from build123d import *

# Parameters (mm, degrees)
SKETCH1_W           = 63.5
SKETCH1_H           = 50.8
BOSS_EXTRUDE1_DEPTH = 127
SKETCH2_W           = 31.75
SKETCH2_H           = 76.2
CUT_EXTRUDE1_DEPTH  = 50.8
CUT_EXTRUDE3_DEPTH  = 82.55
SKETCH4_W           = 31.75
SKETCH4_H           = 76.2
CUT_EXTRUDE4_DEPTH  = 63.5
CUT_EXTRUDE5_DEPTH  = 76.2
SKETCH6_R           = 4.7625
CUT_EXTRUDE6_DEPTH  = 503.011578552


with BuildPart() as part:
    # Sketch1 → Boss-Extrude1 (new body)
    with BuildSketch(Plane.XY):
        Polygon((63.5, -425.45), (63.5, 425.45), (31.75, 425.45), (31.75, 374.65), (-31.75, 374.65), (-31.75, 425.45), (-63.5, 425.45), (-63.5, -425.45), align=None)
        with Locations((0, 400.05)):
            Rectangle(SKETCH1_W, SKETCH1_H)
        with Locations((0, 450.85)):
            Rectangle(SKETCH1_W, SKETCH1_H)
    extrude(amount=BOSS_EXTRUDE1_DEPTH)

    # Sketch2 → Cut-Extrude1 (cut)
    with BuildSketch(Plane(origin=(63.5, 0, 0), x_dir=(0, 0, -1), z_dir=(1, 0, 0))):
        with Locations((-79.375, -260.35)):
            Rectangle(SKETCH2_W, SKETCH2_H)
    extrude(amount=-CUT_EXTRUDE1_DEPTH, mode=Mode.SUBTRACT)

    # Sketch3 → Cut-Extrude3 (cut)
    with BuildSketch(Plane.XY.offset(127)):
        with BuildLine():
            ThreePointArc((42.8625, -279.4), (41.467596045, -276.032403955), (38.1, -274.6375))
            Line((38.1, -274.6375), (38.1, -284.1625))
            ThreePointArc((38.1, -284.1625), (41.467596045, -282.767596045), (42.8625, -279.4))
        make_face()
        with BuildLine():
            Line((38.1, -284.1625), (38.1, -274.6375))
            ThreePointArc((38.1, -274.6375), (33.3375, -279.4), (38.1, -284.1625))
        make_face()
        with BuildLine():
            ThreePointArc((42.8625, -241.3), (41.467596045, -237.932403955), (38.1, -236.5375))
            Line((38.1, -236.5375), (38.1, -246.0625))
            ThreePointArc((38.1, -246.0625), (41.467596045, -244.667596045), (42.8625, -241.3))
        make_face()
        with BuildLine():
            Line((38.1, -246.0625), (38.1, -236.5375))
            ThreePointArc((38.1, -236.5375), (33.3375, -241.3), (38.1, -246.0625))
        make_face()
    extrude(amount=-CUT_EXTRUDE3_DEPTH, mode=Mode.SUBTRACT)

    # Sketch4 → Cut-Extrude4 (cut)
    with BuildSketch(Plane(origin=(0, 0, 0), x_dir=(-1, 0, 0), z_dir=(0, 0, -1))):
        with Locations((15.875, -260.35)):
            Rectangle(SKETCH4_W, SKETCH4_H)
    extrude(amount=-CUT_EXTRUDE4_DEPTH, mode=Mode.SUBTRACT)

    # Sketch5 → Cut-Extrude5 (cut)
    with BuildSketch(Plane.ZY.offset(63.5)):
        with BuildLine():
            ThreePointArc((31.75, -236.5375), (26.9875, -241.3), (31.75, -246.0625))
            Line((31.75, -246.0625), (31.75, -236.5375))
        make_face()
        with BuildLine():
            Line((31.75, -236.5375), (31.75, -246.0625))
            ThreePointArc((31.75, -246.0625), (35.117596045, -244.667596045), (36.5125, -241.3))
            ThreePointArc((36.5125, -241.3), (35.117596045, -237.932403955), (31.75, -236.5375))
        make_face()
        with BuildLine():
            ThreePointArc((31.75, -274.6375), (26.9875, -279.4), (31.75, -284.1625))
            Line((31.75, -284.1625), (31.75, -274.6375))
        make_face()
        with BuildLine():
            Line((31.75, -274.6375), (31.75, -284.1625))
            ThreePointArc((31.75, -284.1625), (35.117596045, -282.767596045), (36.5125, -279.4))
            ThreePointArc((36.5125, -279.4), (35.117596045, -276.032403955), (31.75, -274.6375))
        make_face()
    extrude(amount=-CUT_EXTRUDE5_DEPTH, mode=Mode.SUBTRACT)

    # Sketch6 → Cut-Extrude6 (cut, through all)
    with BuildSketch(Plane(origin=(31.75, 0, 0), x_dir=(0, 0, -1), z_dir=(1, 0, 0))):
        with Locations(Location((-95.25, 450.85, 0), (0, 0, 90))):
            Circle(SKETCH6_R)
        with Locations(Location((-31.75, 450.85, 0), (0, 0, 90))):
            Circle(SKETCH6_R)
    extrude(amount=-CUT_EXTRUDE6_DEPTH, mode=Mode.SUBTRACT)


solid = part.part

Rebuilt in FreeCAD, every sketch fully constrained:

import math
import FreeCAD as App
import Part
import Sketcher
from FreeCAD import Vector
Q = App.Units.Quantity


def add_polygon(sketch, points):
    """Adds a closed chain of lines whose ends are joined by coincident constraints."""
    first, n = sketch.GeometryCount, len(points)
    for a, b in zip(points, points[1:] + points[:1]):
        sketch.addGeometry(Part.LineSegment(App.Vector(*a, 0), App.Vector(*b, 0)), False)
    for i in range(n):
        sketch.addConstraint(Sketcher.Constraint("Coincident", first + i, 2, first + (i + 1) % n, 1))

doc = App.newDocument("Part")
body = doc.addObject("PartDesign::Body", "Body")

# Sketch on XY plane
sketch1 = doc.addObject("Sketcher::SketchObject", "Sketch")
body.addObject(sketch1)
sketch1.AttachmentSupport = (doc.XY_Plane, [""])
sketch1.MapMode = "FlatFace"
add_polygon(sketch1, [(64, -425), (64, 425), (32, 425), (32, 476), (-32, 476), (-32, 425), (-64, 425), (-64, -425)])  # lines 0-7
sketch1.addConstraint([
    Sketcher.Constraint("Vertical", 0),
    Sketcher.Constraint("Horizontal", 1),
    Sketcher.Constraint("Vertical", 2),
    Sketcher.Constraint("Horizontal", 3),
    Sketcher.Constraint("Vertical", 4),
    Sketcher.Constraint("Horizontal", 5),
    Sketcher.Constraint("Vertical", 6),
    Sketcher.Constraint("Horizontal", 7),
    Sketcher.Constraint("Symmetric", 0, 2, 6, 2, -1, 1),
    Sketcher.Constraint("Symmetric", 1, 2, 4, 2, -2),
    Sketcher.Constraint("DistanceX", 7, 1, 7, 2, Q("5 in")),
    Sketcher.Constraint("DistanceY", 2, 1, 2, 2, Q("2 in")),
    Sketcher.Constraint("DistanceX", 3, 2, 3, 1, Q("2.5 in")),
    Sketcher.Constraint("DistanceY", 0, 1, 0, 2, Q("33.5 in")),
])
pad1 = doc.addObject("PartDesign::Pad", "Pad")
body.addObject(pad1)
pad1.Profile = sketch1
pad1.Length = Q("5 in")

# Sketch on YZ plane
sketch2 = doc.addObject("Sketcher::SketchObject", "Sketch001")
body.addObject(sketch2)
sketch2.AttachmentSupport = (doc.YZ_Plane, [""])
sketch2.MapMode = "FlatFace"
sketch2.AttachmentOffset = App.Placement(Vector(0, 0, 2.5 * 25.4), App.Rotation())
add_polygon(sketch2, [(-222, 95), (-298, 95), (-298, 64), (-222, 64)])  # lines 0-3
sketch2.addConstraint([
    Sketcher.Constraint("Horizontal", 0),
    Sketcher.Constraint("Vertical", 1),
    Sketcher.Constraint("Horizontal", 2),
    Sketcher.Constraint("Vertical", 3),
    Sketcher.Constraint("DistanceX", 0, 2, 0, 1, Q("3 in")),
    Sketcher.Constraint("DistanceY", 1, 2, 1, 1, Q("1.25 in")),
    Sketcher.Constraint("DistanceY", -1, 1, 1, 2, Q("2.5 in")),
    Sketcher.Constraint("DistanceX", 0, 2, -1, 1, Q("11.75 in")),
])
pocket1 = doc.addObject("PartDesign::Pocket", "Pocket")
body.addObject(pocket1)
pocket1.Profile = sketch2
pocket1.Length = Q("2 in")

# Sketch on XY plane
sketch3 = doc.addObject("Sketcher::SketchObject", "Sketch002")
body.addObject(sketch3)
sketch3.AttachmentSupport = (doc.XY_Plane, [""])
sketch3.MapMode = "FlatFace"
sketch3.AttachmentOffset = App.Placement(Vector(0, 0, 5 * 25.4), App.Rotation())
sketch3.addGeometry([
    Part.ArcOfCircle(Part.Circle(Vector(38.1, -279.4, 0), Vector(0, 0, 1), 4.8), math.radians(0), math.radians(90)),  # 0
    Part.ArcOfCircle(Part.Circle(Vector(38.1, -279.4, 0), Vector(0, 0, 1), 4.8), math.radians(90), math.radians(270)),  # 1
    Part.ArcOfCircle(Part.Circle(Vector(38.1, -279.4, 0), Vector(0, 0, 1), 4.8), math.radians(-90), math.radians(0)),  # 2
    Part.ArcOfCircle(Part.Circle(Vector(38.1, -241.3, 0), Vector(0, 0, 1), 4.8), math.radians(0), math.radians(90)),  # 3
    Part.ArcOfCircle(Part.Circle(Vector(38.1, -241.3, 0), Vector(0, 0, 1), 4.8), math.radians(90), math.radians(270)),  # 4
    Part.ArcOfCircle(Part.Circle(Vector(38.1, -241.3, 0), Vector(0, 0, 1), 4.8), math.radians(-90), math.radians(0)),  # 5
], False)
sketch3.addConstraint([
    Sketcher.Constraint("Tangent", 0, 2, 1, 1),
    Sketcher.Constraint("Tangent", 1, 2, 2, 1),
    Sketcher.Constraint("Tangent", 2, 2, 0, 1),
    Sketcher.Constraint("Tangent", 3, 2, 4, 1),
    Sketcher.Constraint("Tangent", 4, 2, 5, 1),
    Sketcher.Constraint("Tangent", 5, 2, 3, 1),
    Sketcher.Constraint("Equal", 2, 3),
    Sketcher.Constraint("Horizontal", 1, 3, 2, 2),
    Sketcher.Constraint("Horizontal", 4, 3, 5, 2),
    Sketcher.Constraint("Vertical", 2, 3, 3, 3),
    Sketcher.Constraint("Vertical", 5, 3, 0, 2),
    Sketcher.Constraint("Vertical", 0, 2, 1, 2),
    Sketcher.Constraint("Vertical", 1, 2, 3, 2),
    Sketcher.Constraint("Vertical", 3, 2, 4, 2),
    Sketcher.Constraint("DistanceY", 0, 3, -1, 1, Q("11 in")),
    Sketcher.Constraint("Radius", 0, Q("0.1875 in")),
    Sketcher.Constraint("DistanceX", -1, 1, 0, 3, Q("1.5 in")),
    Sketcher.Constraint("DistanceY", 3, 3, -1, 1, Q("9.5 in")),
])
pocket2 = doc.addObject("PartDesign::Pocket", "Pocket001")
body.addObject(pocket2)
pocket2.Profile = sketch3
pocket2.Length = Q("3.25 in")

# Sketch on XY plane
sketch4 = doc.addObject("Sketcher::SketchObject", "Sketch003")
body.addObject(sketch4)
sketch4.AttachmentSupport = (doc.XY_Plane, [""])
sketch4.MapMode = "FlatFace"
add_polygon(sketch4, [(0, -222), (0, -298), (-32, -298), (-32, -222)])  # lines 0-3
sketch4.addConstraint([
    Sketcher.Constraint("Vertical", 0),
    Sketcher.Constraint("Horizontal", 1),
    Sketcher.Constraint("Vertical", 2),
    Sketcher.Constraint("Horizontal", 3),
    Sketcher.Constraint("PointOnObject", 0, 2, -2),
    Sketcher.Constraint("DistanceY", 0, 2, 0, 1, Q("3 in")),
    Sketcher.Constraint("DistanceX", 1, 2, 1, 1, Q("1.25 in")),
    Sketcher.Constraint("DistanceY", 0, 2, -1, 1, Q("11.75 in")),
])
pocket3 = doc.addObject("PartDesign::Pocket", "Pocket002")
body.addObject(pocket3)
pocket3.Profile = sketch4
pocket3.Length = Q("2.5 in")
pocket3.Reversed = True

# Sketch on YZ plane
sketch5 = doc.addObject("Sketcher::SketchObject", "Sketch004")
body.addObject(sketch5)
sketch5.AttachmentSupport = (doc.YZ_Plane, [""])
sketch5.MapMode = "FlatFace"
sketch5.AttachmentOffset = App.Placement(Vector(0, 0, -2.5 * 25.4), App.Rotation())
sketch5.addGeometry([
    Part.ArcOfCircle(Part.Circle(Vector(-241.3, 31.8, 0), Vector(0, 0, 1), 4.8), math.radians(180), math.radians(360)),  # 0
    Part.ArcOfCircle(Part.Circle(Vector(-241.3, 31.7, 0), Vector(0, 0, 1), 4.8), math.radians(90), math.radians(180)),  # 1
    Part.ArcOfCircle(Part.Circle(Vector(-241.3, 31.7, 0), Vector(0, 0, 1), 4.8), math.radians(0), math.radians(90)),  # 2
    Part.ArcOfCircle(Part.Circle(Vector(-279.4, 31.8, 0), Vector(0, 0, 1), 4.8), math.radians(180), math.radians(360)),  # 3
    Part.ArcOfCircle(Part.Circle(Vector(-279.4, 31.7, 0), Vector(0, 0, 1), 4.8), math.radians(90), math.radians(180)),  # 4
    Part.ArcOfCircle(Part.Circle(Vector(-279.4, 31.7, 0), Vector(0, 0, 1), 4.8), math.radians(0), math.radians(90)),  # 5
], False)
sketch5.addConstraint([
    Sketcher.Constraint("Tangent", 0, 1, 1, 2),
    Sketcher.Constraint("Tangent", 1, 1, 2, 2),
    Sketcher.Constraint("Tangent", 2, 1, 0, 2),
    Sketcher.Constraint("Tangent", 3, 1, 4, 2),
    Sketcher.Constraint("Tangent", 4, 1, 5, 2),
    Sketcher.Constraint("Tangent", 5, 1, 3, 2),
    Sketcher.Constraint("Equal", 2, 3),
    Sketcher.Constraint("Horizontal", 2, 3, 3, 3),
    Sketcher.Constraint("Horizontal", 5, 3, 0, 1),
    Sketcher.Constraint("Horizontal", 0, 1, 2, 1),
    Sketcher.Constraint("Horizontal", 2, 1, 3, 1),
    Sketcher.Constraint("Horizontal", 3, 1, 5, 1),
    Sketcher.Constraint("Vertical", 2, 3, 1, 1),
    Sketcher.Constraint("Vertical", 5, 3, 4, 1),
    Sketcher.Constraint("DistanceX", 3, 3, -1, 1, Q("11 in")),
    Sketcher.Constraint("Radius", 0, Q("0.1875 in")),
    Sketcher.Constraint("DistanceX", 0, 3, -1, 1, Q("9.5 in")),
    Sketcher.Constraint("DistanceY", -1, 1, 0, 3, Q("1.25 in")),
])
pocket4 = doc.addObject("PartDesign::Pocket", "Pocket003")
body.addObject(pocket4)
pocket4.Profile = sketch5
pocket4.Length = Q("3 in")
pocket4.Reversed = True

# Sketch on YZ plane
sketch6 = doc.addObject("Sketcher::SketchObject", "Sketch005")
body.addObject(sketch6)
sketch6.AttachmentSupport = (doc.YZ_Plane, [""])
sketch6.MapMode = "FlatFace"
sketch6.AttachmentOffset = App.Placement(Vector(0, 0, 1.25 * 25.4), App.Rotation())
sketch6.addGeometry([
    Part.Circle(Vector(450.9, 95.2, 0), Vector(0, 0, 1), 4.8),
    Part.Circle(Vector(450.9, 31.8, 0), Vector(0, 0, 1), 4.8),
], False)
sketch6.addConstraint([
    Sketcher.Constraint("Equal", 0, 1),
    Sketcher.Constraint("Vertical", 0, 3, 1, 3),
    Sketcher.Constraint("Diameter", 0, Q("0.375 in")),
    Sketcher.Constraint("DistanceY", 1, 3, 0, 3, Q("2.5 in")),
    Sketcher.Constraint("DistanceX", -1, 1, 0, 3, Q("17.75 in")),
    Sketcher.Constraint("DistanceY", -1, 1, 0, 3, Q("3.75 in")),
])
pocket5 = doc.addObject("PartDesign::Pocket", "Pocket004")
body.addObject(pocket5)
pocket5.Profile = sketch6
pocket5.Type = "ThroughAll"

doc.recompute()
